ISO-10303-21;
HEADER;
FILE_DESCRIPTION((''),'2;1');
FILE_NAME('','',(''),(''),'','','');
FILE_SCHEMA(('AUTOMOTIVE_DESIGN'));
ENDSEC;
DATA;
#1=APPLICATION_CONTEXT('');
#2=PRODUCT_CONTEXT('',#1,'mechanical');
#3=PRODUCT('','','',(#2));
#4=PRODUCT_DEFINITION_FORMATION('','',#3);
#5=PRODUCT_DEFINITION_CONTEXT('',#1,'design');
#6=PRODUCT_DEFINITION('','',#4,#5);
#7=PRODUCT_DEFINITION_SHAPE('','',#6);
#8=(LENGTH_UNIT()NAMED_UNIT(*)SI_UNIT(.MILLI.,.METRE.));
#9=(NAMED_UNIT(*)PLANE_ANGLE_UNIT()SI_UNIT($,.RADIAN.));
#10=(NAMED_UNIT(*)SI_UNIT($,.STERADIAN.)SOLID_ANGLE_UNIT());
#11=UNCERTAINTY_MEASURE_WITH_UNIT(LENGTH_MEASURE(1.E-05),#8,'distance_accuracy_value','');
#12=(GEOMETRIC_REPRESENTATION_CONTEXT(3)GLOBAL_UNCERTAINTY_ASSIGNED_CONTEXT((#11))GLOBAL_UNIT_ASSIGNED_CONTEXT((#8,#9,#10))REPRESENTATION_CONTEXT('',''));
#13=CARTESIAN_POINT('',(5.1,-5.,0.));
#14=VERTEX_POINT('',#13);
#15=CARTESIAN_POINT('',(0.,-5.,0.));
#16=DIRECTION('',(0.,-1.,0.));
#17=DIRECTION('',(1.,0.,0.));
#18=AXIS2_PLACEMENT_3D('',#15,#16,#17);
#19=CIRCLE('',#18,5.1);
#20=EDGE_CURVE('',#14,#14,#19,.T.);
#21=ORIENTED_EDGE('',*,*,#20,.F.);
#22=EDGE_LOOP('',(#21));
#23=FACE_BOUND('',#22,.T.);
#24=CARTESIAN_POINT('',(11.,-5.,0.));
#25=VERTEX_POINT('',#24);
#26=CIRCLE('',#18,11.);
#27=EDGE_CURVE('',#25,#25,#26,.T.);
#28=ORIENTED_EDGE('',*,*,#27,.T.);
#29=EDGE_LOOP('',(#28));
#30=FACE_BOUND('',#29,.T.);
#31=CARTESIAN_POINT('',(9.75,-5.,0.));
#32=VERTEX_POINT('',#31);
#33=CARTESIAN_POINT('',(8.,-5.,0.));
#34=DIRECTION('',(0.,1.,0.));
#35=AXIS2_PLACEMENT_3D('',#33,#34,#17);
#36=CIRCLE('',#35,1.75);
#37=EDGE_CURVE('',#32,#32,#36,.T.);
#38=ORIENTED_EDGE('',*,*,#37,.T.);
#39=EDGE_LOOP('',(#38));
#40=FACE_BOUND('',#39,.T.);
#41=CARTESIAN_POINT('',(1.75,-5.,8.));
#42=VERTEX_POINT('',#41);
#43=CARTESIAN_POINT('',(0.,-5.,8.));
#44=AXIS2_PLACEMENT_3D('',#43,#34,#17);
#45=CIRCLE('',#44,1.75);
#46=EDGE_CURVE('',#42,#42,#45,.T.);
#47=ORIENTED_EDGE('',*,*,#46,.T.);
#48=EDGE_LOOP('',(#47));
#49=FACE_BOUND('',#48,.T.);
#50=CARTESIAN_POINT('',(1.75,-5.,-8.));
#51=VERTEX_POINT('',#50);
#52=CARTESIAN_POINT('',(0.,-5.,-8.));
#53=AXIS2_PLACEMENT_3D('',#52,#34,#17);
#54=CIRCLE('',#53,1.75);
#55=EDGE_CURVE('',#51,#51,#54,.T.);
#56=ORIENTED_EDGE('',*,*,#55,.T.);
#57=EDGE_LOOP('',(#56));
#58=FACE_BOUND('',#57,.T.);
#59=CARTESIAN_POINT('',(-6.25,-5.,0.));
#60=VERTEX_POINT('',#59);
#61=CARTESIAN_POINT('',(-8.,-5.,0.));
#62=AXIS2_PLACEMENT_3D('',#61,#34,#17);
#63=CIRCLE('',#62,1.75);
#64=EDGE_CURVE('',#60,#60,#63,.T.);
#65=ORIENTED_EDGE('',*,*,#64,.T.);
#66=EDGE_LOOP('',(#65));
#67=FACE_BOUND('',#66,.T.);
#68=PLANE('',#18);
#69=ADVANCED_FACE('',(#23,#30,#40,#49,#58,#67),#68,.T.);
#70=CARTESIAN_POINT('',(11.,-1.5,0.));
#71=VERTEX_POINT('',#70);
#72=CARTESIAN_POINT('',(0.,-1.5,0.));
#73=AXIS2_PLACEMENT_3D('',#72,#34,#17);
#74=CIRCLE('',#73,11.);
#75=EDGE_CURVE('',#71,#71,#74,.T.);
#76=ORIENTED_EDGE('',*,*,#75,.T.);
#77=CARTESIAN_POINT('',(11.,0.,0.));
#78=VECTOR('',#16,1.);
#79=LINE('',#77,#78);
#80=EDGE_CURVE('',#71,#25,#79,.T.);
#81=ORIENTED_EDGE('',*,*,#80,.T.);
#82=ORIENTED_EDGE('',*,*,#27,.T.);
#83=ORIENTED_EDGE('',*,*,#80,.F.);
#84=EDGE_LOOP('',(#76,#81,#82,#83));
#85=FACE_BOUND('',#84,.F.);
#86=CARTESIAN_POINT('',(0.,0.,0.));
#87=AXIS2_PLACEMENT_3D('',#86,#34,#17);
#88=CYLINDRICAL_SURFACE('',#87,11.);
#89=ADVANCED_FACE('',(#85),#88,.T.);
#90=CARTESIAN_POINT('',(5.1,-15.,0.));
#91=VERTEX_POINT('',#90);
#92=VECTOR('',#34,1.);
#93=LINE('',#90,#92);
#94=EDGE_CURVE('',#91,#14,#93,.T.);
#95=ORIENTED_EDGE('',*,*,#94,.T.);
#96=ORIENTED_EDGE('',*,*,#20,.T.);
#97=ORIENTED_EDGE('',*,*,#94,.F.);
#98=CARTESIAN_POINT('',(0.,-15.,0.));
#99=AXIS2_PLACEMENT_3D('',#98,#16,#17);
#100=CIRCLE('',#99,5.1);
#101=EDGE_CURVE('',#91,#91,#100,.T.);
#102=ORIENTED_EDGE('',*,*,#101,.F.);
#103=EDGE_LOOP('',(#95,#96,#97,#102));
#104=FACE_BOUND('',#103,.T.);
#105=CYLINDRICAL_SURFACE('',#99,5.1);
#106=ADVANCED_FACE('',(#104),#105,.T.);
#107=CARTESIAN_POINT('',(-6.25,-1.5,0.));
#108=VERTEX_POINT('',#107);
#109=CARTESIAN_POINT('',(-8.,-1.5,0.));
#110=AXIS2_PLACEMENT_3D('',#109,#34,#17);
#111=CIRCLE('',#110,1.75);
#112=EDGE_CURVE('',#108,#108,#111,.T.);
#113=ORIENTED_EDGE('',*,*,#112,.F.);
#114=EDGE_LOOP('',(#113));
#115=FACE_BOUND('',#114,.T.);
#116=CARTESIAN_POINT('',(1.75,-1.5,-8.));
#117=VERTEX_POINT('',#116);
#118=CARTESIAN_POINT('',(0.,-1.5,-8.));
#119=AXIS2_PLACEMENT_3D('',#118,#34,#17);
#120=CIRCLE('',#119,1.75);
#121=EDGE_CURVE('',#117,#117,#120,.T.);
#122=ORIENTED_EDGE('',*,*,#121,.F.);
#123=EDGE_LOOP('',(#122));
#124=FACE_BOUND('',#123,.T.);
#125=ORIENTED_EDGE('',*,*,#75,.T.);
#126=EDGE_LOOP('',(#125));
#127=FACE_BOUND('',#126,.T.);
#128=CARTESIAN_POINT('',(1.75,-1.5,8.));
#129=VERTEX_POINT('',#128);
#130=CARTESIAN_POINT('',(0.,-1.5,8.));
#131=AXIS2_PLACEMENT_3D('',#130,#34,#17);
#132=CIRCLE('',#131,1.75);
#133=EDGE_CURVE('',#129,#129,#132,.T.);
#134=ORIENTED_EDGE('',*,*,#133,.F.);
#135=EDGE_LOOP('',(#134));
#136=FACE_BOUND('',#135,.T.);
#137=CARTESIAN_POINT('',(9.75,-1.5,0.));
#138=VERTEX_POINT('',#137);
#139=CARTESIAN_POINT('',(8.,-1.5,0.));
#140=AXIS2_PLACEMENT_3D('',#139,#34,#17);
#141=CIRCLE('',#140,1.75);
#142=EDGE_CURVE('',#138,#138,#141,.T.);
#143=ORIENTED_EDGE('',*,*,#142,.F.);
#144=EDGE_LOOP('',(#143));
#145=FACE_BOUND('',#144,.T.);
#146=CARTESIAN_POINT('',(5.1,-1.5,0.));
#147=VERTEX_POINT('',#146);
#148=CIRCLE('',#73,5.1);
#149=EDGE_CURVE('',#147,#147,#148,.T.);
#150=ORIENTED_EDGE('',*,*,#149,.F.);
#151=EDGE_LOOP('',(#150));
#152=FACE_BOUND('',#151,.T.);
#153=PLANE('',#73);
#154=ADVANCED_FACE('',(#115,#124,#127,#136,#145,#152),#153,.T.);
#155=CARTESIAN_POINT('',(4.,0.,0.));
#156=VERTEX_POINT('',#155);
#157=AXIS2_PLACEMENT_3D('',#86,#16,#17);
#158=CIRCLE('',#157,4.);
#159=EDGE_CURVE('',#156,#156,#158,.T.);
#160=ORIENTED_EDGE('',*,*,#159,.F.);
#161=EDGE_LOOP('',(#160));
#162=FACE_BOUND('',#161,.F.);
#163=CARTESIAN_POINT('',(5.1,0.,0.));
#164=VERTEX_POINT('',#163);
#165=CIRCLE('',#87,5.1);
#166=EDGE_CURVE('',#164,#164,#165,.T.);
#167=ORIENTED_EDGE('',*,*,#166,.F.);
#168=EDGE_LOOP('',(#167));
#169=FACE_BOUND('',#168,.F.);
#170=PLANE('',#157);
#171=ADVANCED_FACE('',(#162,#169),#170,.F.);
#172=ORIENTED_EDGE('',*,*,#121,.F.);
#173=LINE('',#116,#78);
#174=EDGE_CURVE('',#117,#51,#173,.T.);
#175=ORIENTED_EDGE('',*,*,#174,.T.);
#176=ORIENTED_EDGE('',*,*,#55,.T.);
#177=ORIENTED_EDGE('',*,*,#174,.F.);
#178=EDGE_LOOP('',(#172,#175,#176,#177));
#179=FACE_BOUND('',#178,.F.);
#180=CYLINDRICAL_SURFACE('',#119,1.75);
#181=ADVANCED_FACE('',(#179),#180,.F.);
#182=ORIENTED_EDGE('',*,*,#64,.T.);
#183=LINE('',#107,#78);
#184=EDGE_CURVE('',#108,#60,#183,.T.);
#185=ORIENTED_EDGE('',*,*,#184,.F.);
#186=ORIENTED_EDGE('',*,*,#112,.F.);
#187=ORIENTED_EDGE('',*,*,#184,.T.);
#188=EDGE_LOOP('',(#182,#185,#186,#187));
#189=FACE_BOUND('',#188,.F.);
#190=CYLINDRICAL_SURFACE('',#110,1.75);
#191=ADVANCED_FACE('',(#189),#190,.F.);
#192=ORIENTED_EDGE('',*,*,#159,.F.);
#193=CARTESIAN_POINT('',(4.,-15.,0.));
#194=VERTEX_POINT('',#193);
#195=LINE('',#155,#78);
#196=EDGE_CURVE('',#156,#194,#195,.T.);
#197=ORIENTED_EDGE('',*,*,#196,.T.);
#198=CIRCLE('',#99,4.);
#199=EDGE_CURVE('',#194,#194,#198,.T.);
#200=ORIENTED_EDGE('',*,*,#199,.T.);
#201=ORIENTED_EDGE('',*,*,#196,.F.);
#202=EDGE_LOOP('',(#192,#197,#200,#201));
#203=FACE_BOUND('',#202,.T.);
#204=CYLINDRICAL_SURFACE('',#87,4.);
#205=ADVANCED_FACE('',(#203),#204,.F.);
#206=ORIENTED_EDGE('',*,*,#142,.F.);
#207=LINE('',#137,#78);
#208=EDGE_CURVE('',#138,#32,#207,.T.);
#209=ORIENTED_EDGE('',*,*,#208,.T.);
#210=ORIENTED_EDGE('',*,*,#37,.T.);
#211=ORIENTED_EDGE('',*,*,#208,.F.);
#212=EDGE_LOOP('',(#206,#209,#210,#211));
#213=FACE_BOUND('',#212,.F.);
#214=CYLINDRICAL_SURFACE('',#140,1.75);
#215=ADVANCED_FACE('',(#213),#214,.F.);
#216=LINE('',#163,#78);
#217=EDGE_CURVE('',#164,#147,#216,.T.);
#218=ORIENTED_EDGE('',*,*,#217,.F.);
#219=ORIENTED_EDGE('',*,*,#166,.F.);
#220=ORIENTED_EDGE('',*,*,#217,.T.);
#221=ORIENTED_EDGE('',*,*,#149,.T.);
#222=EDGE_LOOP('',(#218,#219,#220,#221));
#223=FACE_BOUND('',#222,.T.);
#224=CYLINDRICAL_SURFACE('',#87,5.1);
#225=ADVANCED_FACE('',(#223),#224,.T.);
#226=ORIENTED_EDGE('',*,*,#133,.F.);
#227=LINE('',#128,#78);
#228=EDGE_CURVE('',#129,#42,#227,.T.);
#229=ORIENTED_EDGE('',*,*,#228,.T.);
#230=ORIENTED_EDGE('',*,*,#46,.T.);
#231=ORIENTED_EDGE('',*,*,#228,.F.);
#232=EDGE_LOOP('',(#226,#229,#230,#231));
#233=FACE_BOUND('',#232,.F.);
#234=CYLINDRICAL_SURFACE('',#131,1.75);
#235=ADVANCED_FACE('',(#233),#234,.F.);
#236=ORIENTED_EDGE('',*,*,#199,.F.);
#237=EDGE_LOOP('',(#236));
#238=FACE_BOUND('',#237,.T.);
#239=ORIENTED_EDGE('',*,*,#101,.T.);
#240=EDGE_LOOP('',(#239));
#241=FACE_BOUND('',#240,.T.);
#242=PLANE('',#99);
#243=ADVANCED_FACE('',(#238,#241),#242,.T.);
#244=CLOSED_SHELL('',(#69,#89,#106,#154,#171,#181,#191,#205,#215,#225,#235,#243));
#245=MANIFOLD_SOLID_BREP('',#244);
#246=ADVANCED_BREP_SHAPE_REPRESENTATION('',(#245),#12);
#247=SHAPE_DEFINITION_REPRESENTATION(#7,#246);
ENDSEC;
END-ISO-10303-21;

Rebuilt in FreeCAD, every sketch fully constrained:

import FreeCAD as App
import Part
import Sketcher
Q = App.Units.Quantity

doc = App.newDocument("Part")
body = doc.addObject("PartDesign::Body", "Body")

# Sketch on XZ plane
sketch1 = body.newObject("Sketcher::SketchObject", "Sketch")
sketch1.AttachmentSupport = (doc.getObject("XZ_Plane"), [""])
sketch1.MapMode = "FlatFace"
sketch1.addGeometry(Part.Circle(App.Vector(0, 0, 0), App.Vector(0, 0, 1), 11), False)
sketch1.addGeometry(Part.Circle(App.Vector(0, 0, 0), App.Vector(0, 0, 1), 4), False)
sketch1.addConstraint(Sketcher.Constraint("Coincident", 0, 3, -1, 1))
sketch1.addConstraint(Sketcher.Constraint("Coincident", 1, 3, -1, 1))
sketch1.addConstraint(Sketcher.Constraint("Diameter", 0, Q("22 mm")))
sketch1.addConstraint(Sketcher.Constraint("Diameter", 1, Q("8 mm")))
pad1 = body.newObject("PartDesign::Pad", "Pad")
pad1.Profile = sketch1
pad1.Length = 15

# Sketch on XZ plane
sketch2 = body.newObject("Sketcher::SketchObject", "Sketch001")
sketch2.AttachmentSupport = (doc.getObject("XZ_Plane"), [""])
sketch2.MapMode = "FlatFace"
sketch2.AttachmentOffset = App.Placement(App.Vector(0, 0, 15), App.Rotation())
sketch2.addGeometry(Part.Circle(App.Vector(0, 0, 0), App.Vector(0, 0, 1), 11), False)
sketch2.addGeometry(Part.Circle(App.Vector(0, 0, 0), App.Vector(0, 0, 1), 5), False)
sketch2.addConstraint(Sketcher.Constraint("Coincident", 0, 3, -1, 1))
sketch2.addConstraint(Sketcher.Constraint("Coincident", 1, 3, -1, 1))
sketch2.addConstraint(Sketcher.Constraint("Diameter", 0, Q("22 mm")))
sketch2.addConstraint(Sketcher.Constraint("Diameter", 1, Q("10.2 mm")))
pocket1 = body.newObject("PartDesign::Pocket", "Pocket")
pocket1.Profile = sketch2
pocket1.Length = 10

# Sketch on XZ plane
sketch3 = body.newObject("Sketcher::SketchObject", "Sketch002")
sketch3.AttachmentSupport = (doc.getObject("XZ_Plane"), [""])
sketch3.MapMode = "FlatFace"
sketch3.addGeometry(Part.Circle(App.Vector(0, 0, 0), App.Vector(0, 0, 1), 11), False)
sketch3.addGeometry(Part.Circle(App.Vector(0, 0, 0), App.Vector(0, 0, 1), 5), False)
sketch3.addConstraint(Sketcher.Constraint("Coincident", 0, 3, -1, 1))
sketch3.addConstraint(Sketcher.Constraint("Coincident", 1, 3, -1, 1))
sketch3.addConstraint(Sketcher.Constraint("Diameter", 0, Q("22 mm")))
sketch3.addConstraint(Sketcher.Constraint("Diameter", 1, Q("10.2 mm")))
pocket2 = body.newObject("PartDesign::Pocket", "Pocket001")
pocket2.Profile = sketch3
pocket2.Length = 1.5
pocket2.Reversed = True

# Sketch on XZ plane
sketch4 = body.newObject("Sketcher::SketchObject", "Sketch003")
sketch4.AttachmentSupport = (doc.getObject("XZ_Plane"), [""])
sketch4.MapMode = "FlatFace"
sketch4.AttachmentOffset = App.Placement(App.Vector(0, 0, 1.5), App.Rotation())
sketch4.addGeometry(Part.Circle(App.Vector(0, -8, 0), App.Vector(0, 0, 1), 1.8), False)
sketch4.addGeometry(Part.Circle(App.Vector(8, 0, 0), App.Vector(0, 0, 1), 1.8), False)
sketch4.addGeometry(Part.Circle(App.Vector(0, 8, 0), App.Vector(0, 0, 1), 1.8), False)
sketch4.addGeometry(Part.Circle(App.Vector(-8, 0, 0), App.Vector(0, 0, 1), 1.8), False)
sketch4.addConstraint(Sketcher.Constraint("Equal", 0, 1))
sketch4.addConstraint(Sketcher.Constraint("Equal", 1, 2))
sketch4.addConstraint(Sketcher.Constraint("Equal", 2, 3))
sketch4.addConstraint(Sketcher.Constraint("Symmetric", 0, 3, 2, 3, -1, 1))
sketch4.addConstraint(Sketcher.Constraint("Symmetric", 1, 3, 3, 3, -1, 1))
sketch4.addConstraint(Sketcher.Constraint("PointOnObject", 0, 3, -2))
sketch4.addConstraint(Sketcher.Constraint("PointOnObject", 1, 3, -1))
sketch4.addConstraint(Sketcher.Constraint("Diameter", 0, Q("3.5 mm")))
sketch4.addConstraint(Sketcher.Constraint("DistanceY", 0, 3, -1, 1, Q("8 mm")))
sketch4.addConstraint(Sketcher.Constraint("DistanceX", -1, 1, 1, 3, Q("8 mm")))
pocket3 = body.newObject("PartDesign::Pocket", "Pocket002")
pocket3.Profile = sketch4
pocket3.Length = 3.5
pocket3.Reversed = True

doc.recompute()
